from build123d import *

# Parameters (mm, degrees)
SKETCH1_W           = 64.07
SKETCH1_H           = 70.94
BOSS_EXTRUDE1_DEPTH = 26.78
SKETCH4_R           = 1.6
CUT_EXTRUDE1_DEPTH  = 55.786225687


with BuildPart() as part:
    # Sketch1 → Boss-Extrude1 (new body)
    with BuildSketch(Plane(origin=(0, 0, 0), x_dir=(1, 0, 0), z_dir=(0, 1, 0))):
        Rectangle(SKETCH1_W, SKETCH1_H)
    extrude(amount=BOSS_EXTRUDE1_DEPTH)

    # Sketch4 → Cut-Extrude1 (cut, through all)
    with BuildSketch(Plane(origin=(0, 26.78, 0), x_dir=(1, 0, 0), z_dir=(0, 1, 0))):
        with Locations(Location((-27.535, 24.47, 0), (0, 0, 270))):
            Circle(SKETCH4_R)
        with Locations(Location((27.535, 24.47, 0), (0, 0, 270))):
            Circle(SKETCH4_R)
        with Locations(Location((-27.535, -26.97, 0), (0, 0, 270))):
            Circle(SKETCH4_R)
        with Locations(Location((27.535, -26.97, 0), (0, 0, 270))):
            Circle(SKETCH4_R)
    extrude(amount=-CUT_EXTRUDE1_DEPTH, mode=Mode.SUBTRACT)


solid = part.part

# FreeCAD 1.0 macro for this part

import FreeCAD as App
import Part
import Sketcher
from FreeCAD import Vector

doc = App.newDocument("Part")
body = doc.addObject("PartDesign::Body", "Body")

# Sketch on XZ plane
sketch1 = body.newObject("Sketcher::SketchObject", "Sketch")
sketch1.AttachmentSupport = (doc.getObject("XZ_Plane"), [""])
sketch1.MapMode = "FlatFace"
sketch1.addGeometry([
    Part.LineSegment(Vector(-32.035, -35.47, 0), Vector(-32.035, 35.47, 0)),
    Part.LineSegment(Vector(-32.035, 35.47, 0), Vector(32.035, 35.47, 0)),
    Part.LineSegment(Vector(32.035, 35.47, 0), Vector(32.035, -35.47, 0)),
    Part.LineSegment(Vector(32.035, -35.47, 0), Vector(-32.035, -35.47, 0)),
], False)
sketch1.addConstraint([
    Sketcher.Constraint("Coincident", 0, 2, 1, 1),
    Sketcher.Constraint("Coincident", 1, 2, 2, 1),
    Sketcher.Constraint("Coincident", 2, 2, 3, 1),
    Sketcher.Constraint("Coincident", 3, 2, 0, 1),
    Sketcher.Constraint("Vertical", 0),
    Sketcher.Constraint("Horizontal", 1),
    Sketcher.Constraint("Vertical", 2),
    Sketcher.Constraint("Horizontal", 3),
    Sketcher.Constraint("Symmetric", 0, 2, 2, 2, -1, 1),
    Sketcher.Constraint("DistanceX", 1, 1, 1, 2, 64.07),
    Sketcher.Constraint("DistanceY", 0, 1, 0, 2, 70.94),
])
pad1 = body.newObject("PartDesign::Pad", "Pad")
pad1.Profile = sketch1
pad1.Length = 26.78
pad1.Reversed = True

# Sketch on XZ plane
sketch2 = body.newObject("Sketcher::SketchObject", "Sketch001")
sketch2.AttachmentSupport = (doc.getObject("XZ_Plane"), [""])
sketch2.MapMode = "FlatFace"
sketch2.AttachmentOffset = App.Placement(Vector(0, 0, -26.78), App.Rotation())
sketch2.addGeometry([
    Part.Circle(Vector(-27.535, -24.47, 0), Vector(0, 0, 1), 1.6),
    Part.Circle(Vector(27.535, -24.47, 0), Vector(0, 0, 1), 1.6),
    Part.Circle(Vector(-27.535, 26.97, 0), Vector(0, 0, 1), 1.6),
    Part.Circle(Vector(27.535, 26.97, 0), Vector(0, 0, 1), 1.6),
], False)
sketch2.addConstraint([
    Sketcher.Constraint("Equal", 0, 1),
    Sketcher.Constraint("Equal", 1, 2),
    Sketcher.Constraint("Equal", 2, 3),
    Sketcher.Constraint("Symmetric", 0, 3, 1, 3, -2),
    Sketcher.Constraint("Symmetric", 2, 3, 3, 3, -2),
    Sketcher.Constraint("Vertical", 0, 3, 2, 3),
    Sketcher.Constraint("Diameter", 0, 3.2),
    Sketcher.Constraint("DistanceY", 0, 3, -1, 1, 24.47),
    Sketcher.Constraint("DistanceY", -1, 1, 2, 3, 26.97),
    Sketcher.Constraint("DistanceX", 0, 3, 1, 3, 55.07),
])
pocket1 = body.newObject("PartDesign::Pocket", "Pocket")
pocket1.Profile = sketch2
pocket1.Type = "ThroughAll"
pocket1.Reversed = True

doc.recompute()
